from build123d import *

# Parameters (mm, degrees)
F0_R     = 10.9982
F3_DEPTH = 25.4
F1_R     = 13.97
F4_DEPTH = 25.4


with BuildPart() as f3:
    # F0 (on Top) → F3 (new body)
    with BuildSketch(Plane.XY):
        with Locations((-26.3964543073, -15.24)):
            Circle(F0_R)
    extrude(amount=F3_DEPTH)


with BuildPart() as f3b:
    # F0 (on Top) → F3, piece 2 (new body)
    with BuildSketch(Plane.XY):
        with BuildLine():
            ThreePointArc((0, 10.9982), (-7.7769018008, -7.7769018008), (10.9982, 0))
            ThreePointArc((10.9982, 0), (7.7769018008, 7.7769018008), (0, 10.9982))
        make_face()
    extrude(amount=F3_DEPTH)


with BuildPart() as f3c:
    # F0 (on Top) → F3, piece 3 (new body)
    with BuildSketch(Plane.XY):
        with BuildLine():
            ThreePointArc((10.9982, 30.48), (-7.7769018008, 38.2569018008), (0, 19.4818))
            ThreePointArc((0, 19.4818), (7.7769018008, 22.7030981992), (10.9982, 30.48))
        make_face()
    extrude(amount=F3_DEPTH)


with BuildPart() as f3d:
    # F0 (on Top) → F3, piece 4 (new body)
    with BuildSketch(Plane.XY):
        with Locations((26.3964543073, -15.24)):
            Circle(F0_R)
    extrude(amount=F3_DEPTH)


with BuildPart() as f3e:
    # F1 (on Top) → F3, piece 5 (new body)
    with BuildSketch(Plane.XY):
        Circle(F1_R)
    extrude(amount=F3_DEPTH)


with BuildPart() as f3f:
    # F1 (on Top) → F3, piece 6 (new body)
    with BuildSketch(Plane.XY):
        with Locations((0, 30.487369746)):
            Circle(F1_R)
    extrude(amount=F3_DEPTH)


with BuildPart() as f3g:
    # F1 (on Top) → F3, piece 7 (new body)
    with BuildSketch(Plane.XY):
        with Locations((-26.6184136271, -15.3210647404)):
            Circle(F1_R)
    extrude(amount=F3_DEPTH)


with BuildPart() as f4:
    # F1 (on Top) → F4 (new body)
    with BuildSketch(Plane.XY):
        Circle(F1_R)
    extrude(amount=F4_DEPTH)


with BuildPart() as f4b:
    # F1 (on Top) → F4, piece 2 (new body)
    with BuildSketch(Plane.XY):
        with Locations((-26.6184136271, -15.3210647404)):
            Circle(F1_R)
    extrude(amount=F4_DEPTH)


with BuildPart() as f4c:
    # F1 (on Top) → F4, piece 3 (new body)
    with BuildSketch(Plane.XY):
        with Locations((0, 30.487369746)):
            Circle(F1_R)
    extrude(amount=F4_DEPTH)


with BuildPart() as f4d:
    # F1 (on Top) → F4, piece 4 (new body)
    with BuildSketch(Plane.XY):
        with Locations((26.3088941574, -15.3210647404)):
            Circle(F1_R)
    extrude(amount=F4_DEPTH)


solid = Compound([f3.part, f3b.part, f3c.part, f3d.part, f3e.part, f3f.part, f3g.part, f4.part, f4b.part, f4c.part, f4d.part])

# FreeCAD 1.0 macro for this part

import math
import FreeCAD as App
import Part
import Sketcher

V = App.Vector
Q = App.Units.Quantity

doc = App.newDocument("Part")
params = doc.addObject("Spreadsheet::Sheet", "Params")
for row, (alias, value) in enumerate([
    ("sketch1_diameter", "0.866 in"),
    ("pad1_length", "1 in"),
    ("sketch2_radius", "0.433 in"),
    ("pad2_length", "1 in"),
    ("sketch3_radius", "0.433 in"),
    ("pad3_length", "1 in"),
    ("sketch4_diameter", "0.866 in"),
    ("pad4_length", "1 in"),
    ("sketch5_diameter", "1.1 in"),
    ("pad5_length", "1 in"),
    ("sketch6_diameter", "1.1 in"),
    ("pad6_length", "1 in"),
    ("sketch7_diameter", "1.1 in"),
    ("pad7_length", "1 in"),
    ("sketch8_diameter", "1.1 in"),
    ("pad8_length", "1 in"),
    ("sketch9_diameter", "1.1 in"),
    ("pad9_length", "1 in"),
    ("sketch10_diameter", "1.1 in"),
    ("pad10_length", "1 in"),
    ("sketch11_diameter", "1.1 in"),
    ("pad11_length", "1 in"),
], start=1):
    params.set(f"A{row}", alias)
    params.set(f"B{row}", "=" + value)
    params.setAlias(f"B{row}", alias)

body = doc.addObject("PartDesign::Body", "Body")

# Sketch on XY plane
sketch1 = doc.addObject("Sketcher::SketchObject", "Sketch")
body.addObject(sketch1)
sketch1.AttachmentSupport = (doc.XY_Plane, [""])
sketch1.MapMode = "FlatFace"
sketch1.addGeometry(Part.Circle(V(-26.396454, -15.24, 0), V(0, 0, 1), 10.9982), False)
sketch1.addConstraint(Sketcher.Constraint("Diameter", 0, Q("0.866 in")))
sketch1.addConstraint(Sketcher.Constraint("DistanceY", 0, 3, -1, 1, Q("0.6 in")))
sketch1.addConstraint(Sketcher.Constraint("DistanceX", 0, 3, -1, 1, Q("26.396454 mm")))
sketch1.setExpression("Constraints[0]", "Params.sketch1_diameter")
pad1 = doc.addObject("PartDesign::Pad", "Pad")
body.addObject(pad1)
pad1.Profile = sketch1
pad1.setExpression("Length", "Params.pad1_length")
body2 = doc.addObject("PartDesign::Body", "Body001")

# Sketch on XY plane
sketch2 = doc.addObject("Sketcher::SketchObject", "Sketch001")
body2.addObject(sketch2)
sketch2.AttachmentSupport = (doc.getObject("XY_Plane001"), [""])
sketch2.MapMode = "FlatFace"
sketch2.addGeometry(Part.ArcOfCircle(Part.Circle(V(0, 0, 0), V(0, 0, 1), 10.9982), math.radians(90), math.radians(360)), False)
sketch2.addGeometry(Part.ArcOfCircle(Part.Circle(V(0, 0, 0), V(0, 0, 1), 10.9982), math.radians(0), math.radians(90)), False)
sketch2.addConstraint(Sketcher.Constraint("Tangent", 0, 1, 1, 2))
sketch2.addConstraint(Sketcher.Constraint("Coincident", 1, 1, 0, 2))
sketch2.addConstraint(Sketcher.Constraint("Coincident", 0, 3, -1, 1))
sketch2.addConstraint(Sketcher.Constraint("PointOnObject", 0, 1, -2))
sketch2.addConstraint(Sketcher.Constraint("PointOnObject", 1, 1, -1))
sketch2.addConstraint(Sketcher.Constraint("Radius", 0, Q("0.433 in")))
sketch2.setExpression("Constraints[5]", "Params.sketch2_radius")
pad2 = doc.addObject("PartDesign::Pad", "Pad001")
body2.addObject(pad2)
pad2.Profile = sketch2
pad2.setExpression("Length", "Params.pad2_length")
body3 = doc.addObject("PartDesign::Body", "Body002")

# Sketch on XY plane
sketch3 = doc.addObject("Sketcher::SketchObject", "Sketch002")
body3.addObject(sketch3)
sketch3.AttachmentSupport = (doc.getObject("XY_Plane002"), [""])
sketch3.MapMode = "FlatFace"
sketch3.addGeometry(Part.ArcOfCircle(Part.Circle(V(0, 30.48, 0), V(0, 0, 1), 10.9982), math.radians(0), math.radians(270)), False)
sketch3.addGeometry(Part.ArcOfCircle(Part.Circle(V(0, 30.48, 0), V(0, 0, 1), 10.9982), math.radians(-90), math.radians(0)), False)
sketch3.addConstraint(Sketcher.Constraint("Tangent", 0, 1, 1, 2))
sketch3.addConstraint(Sketcher.Constraint("Coincident", 1, 1, 0, 2))
sketch3.addConstraint(Sketcher.Constraint("PointOnObject", 0, 3, -2))
sketch3.addConstraint(Sketcher.Constraint("PointOnObject", 1, 1, -2))
sketch3.addConstraint(Sketcher.Constraint("Horizontal", 1, 3, 0, 1))
sketch3.addConstraint(Sketcher.Constraint("Radius", 0, Q("0.433 in")))
sketch3.addConstraint(Sketcher.Constraint("DistanceY", -1, 1, 0, 3, Q("1.2 in")))
sketch3.setExpression("Constraints[5]", "Params.sketch3_radius")
pad3 = doc.addObject("PartDesign::Pad", "Pad002")
body3.addObject(pad3)
pad3.Profile = sketch3
pad3.setExpression("Length", "Params.pad3_length")
body4 = doc.addObject("PartDesign::Body", "Body003")

# Sketch on XY plane
sketch4 = doc.addObject("Sketcher::SketchObject", "Sketch003")
body4.addObject(sketch4)
sketch4.AttachmentSupport = (doc.getObject("XY_Plane003"), [""])
sketch4.MapMode = "FlatFace"
sketch4.addGeometry(Part.Circle(V(26.396454, -15.24, 0), V(0, 0, 1), 10.9982), False)
sketch4.addConstraint(Sketcher.Constraint("Diameter", 0, Q("0.866 in")))
sketch4.addConstraint(Sketcher.Constraint("DistanceY", 0, 3, -1, 1, Q("0.6 in")))
sketch4.addConstraint(Sketcher.Constraint("DistanceX", -1, 1, 0, 3, Q("26.396454 mm")))
sketch4.setExpression("Constraints[0]", "Params.sketch4_diameter")
pad4 = doc.addObject("PartDesign::Pad", "Pad003")
body4.addObject(pad4)
pad4.Profile = sketch4
pad4.setExpression("Length", "Params.pad4_length")
body5 = doc.addObject("PartDesign::Body", "Body004")

# Sketch on XY plane
sketch5 = doc.addObject("Sketcher::SketchObject", "Sketch004")
body5.addObject(sketch5)
sketch5.AttachmentSupport = (doc.getObject("XY_Plane004"), [""])
sketch5.MapMode = "FlatFace"
sketch5.addGeometry(Part.Circle(V(0, 0, 0), V(0, 0, 1), 13.97), False)
sketch5.addConstraint(Sketcher.Constraint("Coincident", 0, 3, -1, 1))
sketch5.addConstraint(Sketcher.Constraint("Diameter", 0, Q("1.1 in")))
sketch5.setExpression("Constraints[1]", "Params.sketch5_diameter")
pad5 = doc.addObject("PartDesign::Pad", "Pad004")
body5.addObject(pad5)
pad5.Profile = sketch5
pad5.setExpression("Length", "Params.pad5_length")
body6 = doc.addObject("PartDesign::Body", "Body005")

# Sketch on XY plane
sketch6 = doc.addObject("Sketcher::SketchObject", "Sketch005")
body6.addObject(sketch6)
sketch6.AttachmentSupport = (doc.getObject("XY_Plane005"), [""])
sketch6.MapMode = "FlatFace"
sketch6.addGeometry(Part.Circle(V(0, 30.48737, 0), V(0, 0, 1), 13.97), False)
sketch6.addConstraint(Sketcher.Constraint("PointOnObject", 0, 3, -2))
sketch6.addConstraint(Sketcher.Constraint("Diameter", 0, Q("1.1 in")))
sketch6.addConstraint(Sketcher.Constraint("DistanceY", -1, 1, 0, 3, Q("30.48737 mm")))
sketch6.setExpression("Constraints[1]", "Params.sketch6_diameter")
pad6 = doc.addObject("PartDesign::Pad", "Pad005")
body6.addObject(pad6)
pad6.Profile = sketch6
pad6.setExpression("Length", "Params.pad6_length")
body7 = doc.addObject("PartDesign::Body", "Body006")

# Sketch on XY plane
sketch7 = doc.addObject("Sketcher::SketchObject", "Sketch006")
body7.addObject(sketch7)
sketch7.AttachmentSupport = (doc.getObject("XY_Plane006"), [""])
sketch7.MapMode = "FlatFace"
sketch7.addGeometry(Part.Circle(V(-26.618414, -15.321065, 0), V(0, 0, 1), 13.97), False)
sketch7.addConstraint(Sketcher.Constraint("Diameter", 0, Q("1.1 in")))
sketch7.addConstraint(Sketcher.Constraint("DistanceX", 0, 3, -1, 1, Q("26.618414 mm")))
sketch7.addConstraint(Sketcher.Constraint("DistanceY", 0, 3, -1, 1, Q("15.321065 mm")))
sketch7.setExpression("Constraints[0]", "Params.sketch7_diameter")
pad7 = doc.addObject("PartDesign::Pad", "Pad006")
body7.addObject(pad7)
pad7.Profile = sketch7
pad7.setExpression("Length", "Params.pad7_length")
body8 = doc.addObject("PartDesign::Body", "Body007")

# Sketch on XY plane
sketch8 = doc.addObject("Sketcher::SketchObject", "Sketch007")
body8.addObject(sketch8)
sketch8.AttachmentSupport = (doc.getObject("XY_Plane007"), [""])
sketch8.MapMode = "FlatFace"
sketch8.addGeometry(Part.Circle(V(0, 0, 0), V(0, 0, 1), 13.97), False)
sketch8.addConstraint(Sketcher.Constraint("Coincident", 0, 3, -1, 1))
sketch8.addConstraint(Sketcher.Constraint("Diameter", 0, Q("1.1 in")))
sketch8.setExpression("Constraints[1]", "Params.sketch8_diameter")
pad8 = doc.addObject("PartDesign::Pad", "Pad007")
body8.addObject(pad8)
pad8.Profile = sketch8
pad8.setExpression("Length", "Params.pad8_length")
body9 = doc.addObject("PartDesign::Body", "Body008")

# Sketch on XY plane
sketch9 = doc.addObject("Sketcher::SketchObject", "Sketch008")
body9.addObject(sketch9)
sketch9.AttachmentSupport = (doc.getObject("XY_Plane008"), [""])
sketch9.MapMode = "FlatFace"
sketch9.addGeometry(Part.Circle(V(-26.618414, -15.321065, 0), V(0, 0, 1), 13.97), False)
sketch9.addConstraint(Sketcher.Constraint("Diameter", 0, Q("1.1 in")))
sketch9.addConstraint(Sketcher.Constraint("DistanceX", 0, 3, -1, 1, Q("26.618414 mm")))
sketch9.addConstraint(Sketcher.Constraint("DistanceY", 0, 3, -1, 1, Q("15.321065 mm")))
sketch9.setExpression("Constraints[0]", "Params.sketch9_diameter")
pad9 = doc.addObject("PartDesign::Pad", "Pad008")
body9.addObject(pad9)
pad9.Profile = sketch9
pad9.setExpression("Length", "Params.pad9_length")
body10 = doc.addObject("PartDesign::Body", "Body009")

# Sketch on XY plane
sketch10 = doc.addObject("Sketcher::SketchObject", "Sketch009")
body10.addObject(sketch10)
sketch10.AttachmentSupport = (doc.getObject("XY_Plane009"), [""])
sketch10.MapMode = "FlatFace"
sketch10.addGeometry(Part.Circle(V(0, 30.48737, 0), V(0, 0, 1), 13.97), False)
sketch10.addConstraint(Sketcher.Constraint("PointOnObject", 0, 3, -2))
sketch10.addConstraint(Sketcher.Constraint("Diameter", 0, Q("1.1 in")))
sketch10.addConstraint(Sketcher.Constraint("DistanceY", -1, 1, 0, 3, Q("30.48737 mm")))
sketch10.setExpression("Constraints[1]", "Params.sketch10_diameter")
pad10 = doc.addObject("PartDesign::Pad", "Pad009")
body10.addObject(pad10)
pad10.Profile = sketch10
pad10.setExpression("Length", "Params.pad10_length")
body11 = doc.addObject("PartDesign::Body", "Body010")

# Sketch on XY plane
sketch11 = doc.addObject("Sketcher::SketchObject", "Sketch010")
body11.addObject(sketch11)
sketch11.AttachmentSupport = (doc.getObject("XY_Plane010"), [""])
sketch11.MapMode = "FlatFace"
sketch11.addGeometry(Part.Circle(V(26.308894, -15.321065, 0), V(0, 0, 1), 13.97), False)
sketch11.addConstraint(Sketcher.Constraint("Diameter", 0, Q("1.1 in")))
sketch11.addConstraint(Sketcher.Constraint("DistanceX", -1, 1, 0, 3, Q("26.308894 mm")))
sketch11.addConstraint(Sketcher.Constraint("DistanceY", 0, 3, -1, 1, Q("15.321065 mm")))
sketch11.setExpression("Constraints[0]", "Params.sketch11_diameter")
pad11 = doc.addObject("PartDesign::Pad", "Pad010")
body11.addObject(pad11)
pad11.Profile = sketch11
pad11.setExpression("Length", "Params.pad11_length")

doc.recompute()
